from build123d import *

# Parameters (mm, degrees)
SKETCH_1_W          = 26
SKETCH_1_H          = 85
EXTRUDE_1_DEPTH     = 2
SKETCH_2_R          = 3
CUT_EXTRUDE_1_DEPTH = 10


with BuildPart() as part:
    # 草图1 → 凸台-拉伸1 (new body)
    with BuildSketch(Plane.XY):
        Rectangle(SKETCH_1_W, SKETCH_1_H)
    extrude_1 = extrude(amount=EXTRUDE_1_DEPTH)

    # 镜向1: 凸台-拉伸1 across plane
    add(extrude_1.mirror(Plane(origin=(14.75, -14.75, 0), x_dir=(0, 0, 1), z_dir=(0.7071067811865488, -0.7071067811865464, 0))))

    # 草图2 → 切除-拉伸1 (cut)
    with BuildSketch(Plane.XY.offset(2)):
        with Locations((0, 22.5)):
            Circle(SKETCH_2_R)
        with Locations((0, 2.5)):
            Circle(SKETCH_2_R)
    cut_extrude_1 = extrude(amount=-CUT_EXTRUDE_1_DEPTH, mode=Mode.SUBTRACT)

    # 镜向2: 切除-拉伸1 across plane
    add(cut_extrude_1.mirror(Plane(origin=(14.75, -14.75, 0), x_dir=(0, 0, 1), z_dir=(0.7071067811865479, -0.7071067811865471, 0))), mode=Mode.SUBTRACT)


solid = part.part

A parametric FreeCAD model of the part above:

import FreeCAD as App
import Part
import Sketcher

V = App.Vector

doc = App.newDocument("Part")
body = doc.addObject("PartDesign::Body", "Body")

sketch1 = body.newObject("Sketcher::SketchObject", "Sketch")
sketch1.AttachmentSupport = (doc.getObject("XY_Plane"), [""])
sketch1.MapMode = "FlatFace"
sketch1.addGeometry([
    Part.LineSegment(V(-13, 42, 0), V(-13, -42, 0)),
    Part.LineSegment(V(-13, -42, 0), V(13, -42, 0)),
    Part.LineSegment(V(13, -42, 0), V(13, 42, 0)),
    Part.LineSegment(V(13, 42, 0), V(-13, 42, 0)),
], False)
sketch1.addConstraint([
    Sketcher.Constraint("Coincident", 0, 2, 1, 1),
    Sketcher.Constraint("Coincident", 1, 2, 2, 1),
    Sketcher.Constraint("Coincident", 2, 2, 3, 1),
    Sketcher.Constraint("Coincident", 3, 2, 0, 1),
    Sketcher.Constraint("Vertical", 0),
    Sketcher.Constraint("Horizontal", 1),
    Sketcher.Constraint("Vertical", 2),
    Sketcher.Constraint("Horizontal", 3),
    Sketcher.Constraint("Symmetric", 0, 2, 2, 2, -1, 1),
    Sketcher.Constraint("DistanceX", 1, 1, 1, 2, 26.0),
    Sketcher.Constraint("DistanceY", 0, 2, 0, 1, 85.0),
])
pad1 = body.newObject("PartDesign::Pad", "Pad")
pad1.Profile = sketch1
pad1.Length = 2
doc.recompute()

datumplane = body.newObject("PartDesign::Plane", "DatumPlane")
datumplane.Placement = App.Placement(V(14.75, -14.75, 0), App.Rotation(V(-0.707106781, -0.707106781, 0), V(0, 0, -1), V(0.707106781, -0.707106781, 0), "ZXY"))
mirrored = body.newObject("PartDesign::Mirrored", "Mirrored")
mirrored.Originals = [pad1]
mirrored.MirrorPlane = (datumplane, [""])
body.Tip = mirrored

sketch2 = body.newObject("Sketcher::SketchObject", "Sketch001")
sketch2.AttachmentSupport = (doc.getObject("XY_Plane"), [""])
sketch2.MapMode = "FlatFace"
sketch2.AttachmentOffset = App.Placement(V(0, 0, 2), App.Rotation())
sketch2.addGeometry([
    Part.Circle(V(0, 22.5, 0), V(0, 0, 1), 3),
    Part.Circle(V(0, 2.5, 0), V(0, 0, 1), 3),
], False)
sketch2.addConstraint([
    Sketcher.Constraint("Equal", 0, 1),
    Sketcher.Constraint("PointOnObject", 0, 3, -2),
    Sketcher.Constraint("PointOnObject", 1, 3, -2),
    Sketcher.Constraint("Diameter", 0, 6.0),
    Sketcher.Constraint("DistanceY", 1, 3, 0, 3, 20.0),
    Sketcher.Constraint("DistanceY", -1, 1, 0, 3, 22.5),
])
pocket1 = body.newObject("PartDesign::Pocket", "Pocket")
pocket1.Profile = sketch2
pocket1.Length = 10
doc.recompute()

datumplane2 = body.newObject("PartDesign::Plane", "DatumPlane001")
datumplane2.Placement = App.Placement(V(14.75, -14.75, 0), App.Rotation(V(-0.707106781, -0.707106781, 0), V(0, 0, -1), V(0.707106781, -0.707106781, 0), "ZXY"))
mirrored2 = body.newObject("PartDesign::Mirrored", "Mirrored001")
mirrored2.Originals = [pocket1]
mirrored2.MirrorPlane = (datumplane2, [""])
body.Tip = mirrored2

doc.recompute()
